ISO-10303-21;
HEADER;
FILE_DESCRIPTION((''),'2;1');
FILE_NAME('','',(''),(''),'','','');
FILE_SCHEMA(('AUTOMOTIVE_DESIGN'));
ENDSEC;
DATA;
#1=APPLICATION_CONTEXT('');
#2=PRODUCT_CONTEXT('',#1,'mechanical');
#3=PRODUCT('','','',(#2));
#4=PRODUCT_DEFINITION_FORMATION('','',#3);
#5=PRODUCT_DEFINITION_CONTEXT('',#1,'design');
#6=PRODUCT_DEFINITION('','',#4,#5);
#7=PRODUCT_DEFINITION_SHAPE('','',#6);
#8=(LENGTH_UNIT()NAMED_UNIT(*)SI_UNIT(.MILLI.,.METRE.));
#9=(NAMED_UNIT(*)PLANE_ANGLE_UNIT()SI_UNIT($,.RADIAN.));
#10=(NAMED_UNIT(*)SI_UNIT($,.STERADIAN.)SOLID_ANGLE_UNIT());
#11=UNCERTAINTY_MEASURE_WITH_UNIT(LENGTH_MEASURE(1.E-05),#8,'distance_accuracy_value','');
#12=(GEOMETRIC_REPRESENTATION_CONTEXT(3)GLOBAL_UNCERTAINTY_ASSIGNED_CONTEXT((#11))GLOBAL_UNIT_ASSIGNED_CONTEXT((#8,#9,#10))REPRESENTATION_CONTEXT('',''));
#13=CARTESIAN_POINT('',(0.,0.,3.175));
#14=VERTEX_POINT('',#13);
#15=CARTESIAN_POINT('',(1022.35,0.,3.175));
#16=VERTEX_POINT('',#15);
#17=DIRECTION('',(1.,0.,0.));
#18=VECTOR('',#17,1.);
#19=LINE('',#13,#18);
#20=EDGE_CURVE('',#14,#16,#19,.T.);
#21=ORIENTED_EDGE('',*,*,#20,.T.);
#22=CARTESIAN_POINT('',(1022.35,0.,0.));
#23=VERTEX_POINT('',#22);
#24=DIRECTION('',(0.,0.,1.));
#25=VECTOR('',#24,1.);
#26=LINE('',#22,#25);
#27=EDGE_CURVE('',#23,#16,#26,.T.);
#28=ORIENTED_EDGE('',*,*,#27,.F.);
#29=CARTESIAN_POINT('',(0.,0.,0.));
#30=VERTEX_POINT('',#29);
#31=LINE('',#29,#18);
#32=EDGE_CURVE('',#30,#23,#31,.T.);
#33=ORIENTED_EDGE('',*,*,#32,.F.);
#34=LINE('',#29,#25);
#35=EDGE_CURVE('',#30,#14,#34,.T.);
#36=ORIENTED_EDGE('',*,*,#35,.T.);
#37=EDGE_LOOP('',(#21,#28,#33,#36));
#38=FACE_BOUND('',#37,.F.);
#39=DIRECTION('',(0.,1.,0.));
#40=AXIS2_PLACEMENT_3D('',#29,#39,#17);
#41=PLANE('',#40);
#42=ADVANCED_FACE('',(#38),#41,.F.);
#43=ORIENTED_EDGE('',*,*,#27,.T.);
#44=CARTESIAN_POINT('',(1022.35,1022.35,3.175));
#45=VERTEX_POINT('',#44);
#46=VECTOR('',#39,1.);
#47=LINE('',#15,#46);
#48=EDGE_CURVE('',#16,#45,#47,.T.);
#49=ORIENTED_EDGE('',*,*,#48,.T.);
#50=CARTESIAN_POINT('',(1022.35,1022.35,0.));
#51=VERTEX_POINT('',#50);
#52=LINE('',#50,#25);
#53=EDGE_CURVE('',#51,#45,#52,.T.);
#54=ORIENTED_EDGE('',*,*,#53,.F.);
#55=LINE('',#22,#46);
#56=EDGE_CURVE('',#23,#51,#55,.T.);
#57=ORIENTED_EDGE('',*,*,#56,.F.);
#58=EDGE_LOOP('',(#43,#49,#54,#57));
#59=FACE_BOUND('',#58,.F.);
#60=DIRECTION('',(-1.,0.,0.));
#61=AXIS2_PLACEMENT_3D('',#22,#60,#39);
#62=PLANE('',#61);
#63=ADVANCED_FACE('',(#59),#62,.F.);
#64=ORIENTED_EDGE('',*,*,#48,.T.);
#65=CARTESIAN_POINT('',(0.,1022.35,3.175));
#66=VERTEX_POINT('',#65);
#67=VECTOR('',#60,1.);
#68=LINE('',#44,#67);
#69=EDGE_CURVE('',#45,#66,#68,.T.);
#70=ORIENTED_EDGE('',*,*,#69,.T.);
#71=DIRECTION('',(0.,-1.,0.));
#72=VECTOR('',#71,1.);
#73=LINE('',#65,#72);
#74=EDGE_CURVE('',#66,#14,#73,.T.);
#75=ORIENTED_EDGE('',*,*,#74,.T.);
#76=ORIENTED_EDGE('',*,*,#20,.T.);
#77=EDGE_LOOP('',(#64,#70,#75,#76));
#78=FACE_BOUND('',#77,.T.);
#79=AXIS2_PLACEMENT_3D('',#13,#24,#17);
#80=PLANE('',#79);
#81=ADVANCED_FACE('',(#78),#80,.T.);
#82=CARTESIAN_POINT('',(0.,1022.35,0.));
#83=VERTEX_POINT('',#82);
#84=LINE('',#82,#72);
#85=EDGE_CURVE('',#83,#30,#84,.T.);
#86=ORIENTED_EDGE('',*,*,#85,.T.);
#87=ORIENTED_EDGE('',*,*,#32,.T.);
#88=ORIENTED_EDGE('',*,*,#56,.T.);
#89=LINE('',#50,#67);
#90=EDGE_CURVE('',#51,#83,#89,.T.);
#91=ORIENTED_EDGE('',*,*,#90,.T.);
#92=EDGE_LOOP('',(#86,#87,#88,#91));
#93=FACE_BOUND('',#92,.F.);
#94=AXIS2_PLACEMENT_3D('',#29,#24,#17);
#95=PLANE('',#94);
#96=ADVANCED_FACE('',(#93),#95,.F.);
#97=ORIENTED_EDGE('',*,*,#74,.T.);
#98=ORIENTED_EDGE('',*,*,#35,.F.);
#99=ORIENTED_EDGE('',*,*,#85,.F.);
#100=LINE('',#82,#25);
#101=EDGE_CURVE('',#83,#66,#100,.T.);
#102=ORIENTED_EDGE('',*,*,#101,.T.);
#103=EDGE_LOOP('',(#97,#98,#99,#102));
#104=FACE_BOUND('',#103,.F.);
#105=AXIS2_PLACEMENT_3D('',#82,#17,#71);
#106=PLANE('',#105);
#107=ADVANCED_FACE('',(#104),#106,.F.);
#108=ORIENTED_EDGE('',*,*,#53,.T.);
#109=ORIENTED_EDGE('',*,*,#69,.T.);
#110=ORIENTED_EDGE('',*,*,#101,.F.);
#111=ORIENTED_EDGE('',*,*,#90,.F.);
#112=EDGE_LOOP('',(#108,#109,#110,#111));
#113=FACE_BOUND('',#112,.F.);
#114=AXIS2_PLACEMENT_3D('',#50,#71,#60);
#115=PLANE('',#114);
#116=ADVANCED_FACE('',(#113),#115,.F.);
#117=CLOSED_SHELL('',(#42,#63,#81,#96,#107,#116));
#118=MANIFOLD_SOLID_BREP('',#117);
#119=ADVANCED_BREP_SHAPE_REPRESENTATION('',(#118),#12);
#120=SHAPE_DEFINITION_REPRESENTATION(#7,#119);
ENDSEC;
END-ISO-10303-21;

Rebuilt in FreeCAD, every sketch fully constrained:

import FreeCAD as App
import Part
import Sketcher

V = App.Vector
Q = App.Units.Quantity

doc = App.newDocument("Part")
body = doc.addObject("PartDesign::Body", "Body")

sketch1 = body.newObject("Sketcher::SketchObject", "Sketch")
sketch1.AttachmentSupport = (doc.getObject("XY_Plane"), [""])
sketch1.MapMode = "FlatFace"
sketch1.addGeometry([
    Part.LineSegment(V(0, 1022, 0), V(0, 0, 0)),
    Part.LineSegment(V(0, 0, 0), V(1022, 0, 0)),
    Part.LineSegment(V(1022, 0, 0), V(1022, 1022, 0)),
    Part.LineSegment(V(1022, 1022, 0), V(0, 1022, 0)),
], False)
sketch1.addConstraint([
    Sketcher.Constraint("Coincident", 0, 2, 1, 1),
    Sketcher.Constraint("Coincident", 1, 2, 2, 1),
    Sketcher.Constraint("Coincident", 2, 2, 3, 1),
    Sketcher.Constraint("Coincident", 3, 2, 0, 1),
    Sketcher.Constraint("Vertical", 0),
    Sketcher.Constraint("Horizontal", 1),
    Sketcher.Constraint("Vertical", 2),
    Sketcher.Constraint("Horizontal", 3),
    Sketcher.Constraint("Coincident", 0, 2, -1, 1),
    Sketcher.Constraint("Equal", 3, 0),
    Sketcher.Constraint("DistanceX", 1, 1, 1, 2, Q("40.25 in")),
])
pad1 = body.newObject("PartDesign::Pad", "Pad")
pad1.Profile = sketch1
pad1.Length = Q("0.125 in")

doc.recompute()
